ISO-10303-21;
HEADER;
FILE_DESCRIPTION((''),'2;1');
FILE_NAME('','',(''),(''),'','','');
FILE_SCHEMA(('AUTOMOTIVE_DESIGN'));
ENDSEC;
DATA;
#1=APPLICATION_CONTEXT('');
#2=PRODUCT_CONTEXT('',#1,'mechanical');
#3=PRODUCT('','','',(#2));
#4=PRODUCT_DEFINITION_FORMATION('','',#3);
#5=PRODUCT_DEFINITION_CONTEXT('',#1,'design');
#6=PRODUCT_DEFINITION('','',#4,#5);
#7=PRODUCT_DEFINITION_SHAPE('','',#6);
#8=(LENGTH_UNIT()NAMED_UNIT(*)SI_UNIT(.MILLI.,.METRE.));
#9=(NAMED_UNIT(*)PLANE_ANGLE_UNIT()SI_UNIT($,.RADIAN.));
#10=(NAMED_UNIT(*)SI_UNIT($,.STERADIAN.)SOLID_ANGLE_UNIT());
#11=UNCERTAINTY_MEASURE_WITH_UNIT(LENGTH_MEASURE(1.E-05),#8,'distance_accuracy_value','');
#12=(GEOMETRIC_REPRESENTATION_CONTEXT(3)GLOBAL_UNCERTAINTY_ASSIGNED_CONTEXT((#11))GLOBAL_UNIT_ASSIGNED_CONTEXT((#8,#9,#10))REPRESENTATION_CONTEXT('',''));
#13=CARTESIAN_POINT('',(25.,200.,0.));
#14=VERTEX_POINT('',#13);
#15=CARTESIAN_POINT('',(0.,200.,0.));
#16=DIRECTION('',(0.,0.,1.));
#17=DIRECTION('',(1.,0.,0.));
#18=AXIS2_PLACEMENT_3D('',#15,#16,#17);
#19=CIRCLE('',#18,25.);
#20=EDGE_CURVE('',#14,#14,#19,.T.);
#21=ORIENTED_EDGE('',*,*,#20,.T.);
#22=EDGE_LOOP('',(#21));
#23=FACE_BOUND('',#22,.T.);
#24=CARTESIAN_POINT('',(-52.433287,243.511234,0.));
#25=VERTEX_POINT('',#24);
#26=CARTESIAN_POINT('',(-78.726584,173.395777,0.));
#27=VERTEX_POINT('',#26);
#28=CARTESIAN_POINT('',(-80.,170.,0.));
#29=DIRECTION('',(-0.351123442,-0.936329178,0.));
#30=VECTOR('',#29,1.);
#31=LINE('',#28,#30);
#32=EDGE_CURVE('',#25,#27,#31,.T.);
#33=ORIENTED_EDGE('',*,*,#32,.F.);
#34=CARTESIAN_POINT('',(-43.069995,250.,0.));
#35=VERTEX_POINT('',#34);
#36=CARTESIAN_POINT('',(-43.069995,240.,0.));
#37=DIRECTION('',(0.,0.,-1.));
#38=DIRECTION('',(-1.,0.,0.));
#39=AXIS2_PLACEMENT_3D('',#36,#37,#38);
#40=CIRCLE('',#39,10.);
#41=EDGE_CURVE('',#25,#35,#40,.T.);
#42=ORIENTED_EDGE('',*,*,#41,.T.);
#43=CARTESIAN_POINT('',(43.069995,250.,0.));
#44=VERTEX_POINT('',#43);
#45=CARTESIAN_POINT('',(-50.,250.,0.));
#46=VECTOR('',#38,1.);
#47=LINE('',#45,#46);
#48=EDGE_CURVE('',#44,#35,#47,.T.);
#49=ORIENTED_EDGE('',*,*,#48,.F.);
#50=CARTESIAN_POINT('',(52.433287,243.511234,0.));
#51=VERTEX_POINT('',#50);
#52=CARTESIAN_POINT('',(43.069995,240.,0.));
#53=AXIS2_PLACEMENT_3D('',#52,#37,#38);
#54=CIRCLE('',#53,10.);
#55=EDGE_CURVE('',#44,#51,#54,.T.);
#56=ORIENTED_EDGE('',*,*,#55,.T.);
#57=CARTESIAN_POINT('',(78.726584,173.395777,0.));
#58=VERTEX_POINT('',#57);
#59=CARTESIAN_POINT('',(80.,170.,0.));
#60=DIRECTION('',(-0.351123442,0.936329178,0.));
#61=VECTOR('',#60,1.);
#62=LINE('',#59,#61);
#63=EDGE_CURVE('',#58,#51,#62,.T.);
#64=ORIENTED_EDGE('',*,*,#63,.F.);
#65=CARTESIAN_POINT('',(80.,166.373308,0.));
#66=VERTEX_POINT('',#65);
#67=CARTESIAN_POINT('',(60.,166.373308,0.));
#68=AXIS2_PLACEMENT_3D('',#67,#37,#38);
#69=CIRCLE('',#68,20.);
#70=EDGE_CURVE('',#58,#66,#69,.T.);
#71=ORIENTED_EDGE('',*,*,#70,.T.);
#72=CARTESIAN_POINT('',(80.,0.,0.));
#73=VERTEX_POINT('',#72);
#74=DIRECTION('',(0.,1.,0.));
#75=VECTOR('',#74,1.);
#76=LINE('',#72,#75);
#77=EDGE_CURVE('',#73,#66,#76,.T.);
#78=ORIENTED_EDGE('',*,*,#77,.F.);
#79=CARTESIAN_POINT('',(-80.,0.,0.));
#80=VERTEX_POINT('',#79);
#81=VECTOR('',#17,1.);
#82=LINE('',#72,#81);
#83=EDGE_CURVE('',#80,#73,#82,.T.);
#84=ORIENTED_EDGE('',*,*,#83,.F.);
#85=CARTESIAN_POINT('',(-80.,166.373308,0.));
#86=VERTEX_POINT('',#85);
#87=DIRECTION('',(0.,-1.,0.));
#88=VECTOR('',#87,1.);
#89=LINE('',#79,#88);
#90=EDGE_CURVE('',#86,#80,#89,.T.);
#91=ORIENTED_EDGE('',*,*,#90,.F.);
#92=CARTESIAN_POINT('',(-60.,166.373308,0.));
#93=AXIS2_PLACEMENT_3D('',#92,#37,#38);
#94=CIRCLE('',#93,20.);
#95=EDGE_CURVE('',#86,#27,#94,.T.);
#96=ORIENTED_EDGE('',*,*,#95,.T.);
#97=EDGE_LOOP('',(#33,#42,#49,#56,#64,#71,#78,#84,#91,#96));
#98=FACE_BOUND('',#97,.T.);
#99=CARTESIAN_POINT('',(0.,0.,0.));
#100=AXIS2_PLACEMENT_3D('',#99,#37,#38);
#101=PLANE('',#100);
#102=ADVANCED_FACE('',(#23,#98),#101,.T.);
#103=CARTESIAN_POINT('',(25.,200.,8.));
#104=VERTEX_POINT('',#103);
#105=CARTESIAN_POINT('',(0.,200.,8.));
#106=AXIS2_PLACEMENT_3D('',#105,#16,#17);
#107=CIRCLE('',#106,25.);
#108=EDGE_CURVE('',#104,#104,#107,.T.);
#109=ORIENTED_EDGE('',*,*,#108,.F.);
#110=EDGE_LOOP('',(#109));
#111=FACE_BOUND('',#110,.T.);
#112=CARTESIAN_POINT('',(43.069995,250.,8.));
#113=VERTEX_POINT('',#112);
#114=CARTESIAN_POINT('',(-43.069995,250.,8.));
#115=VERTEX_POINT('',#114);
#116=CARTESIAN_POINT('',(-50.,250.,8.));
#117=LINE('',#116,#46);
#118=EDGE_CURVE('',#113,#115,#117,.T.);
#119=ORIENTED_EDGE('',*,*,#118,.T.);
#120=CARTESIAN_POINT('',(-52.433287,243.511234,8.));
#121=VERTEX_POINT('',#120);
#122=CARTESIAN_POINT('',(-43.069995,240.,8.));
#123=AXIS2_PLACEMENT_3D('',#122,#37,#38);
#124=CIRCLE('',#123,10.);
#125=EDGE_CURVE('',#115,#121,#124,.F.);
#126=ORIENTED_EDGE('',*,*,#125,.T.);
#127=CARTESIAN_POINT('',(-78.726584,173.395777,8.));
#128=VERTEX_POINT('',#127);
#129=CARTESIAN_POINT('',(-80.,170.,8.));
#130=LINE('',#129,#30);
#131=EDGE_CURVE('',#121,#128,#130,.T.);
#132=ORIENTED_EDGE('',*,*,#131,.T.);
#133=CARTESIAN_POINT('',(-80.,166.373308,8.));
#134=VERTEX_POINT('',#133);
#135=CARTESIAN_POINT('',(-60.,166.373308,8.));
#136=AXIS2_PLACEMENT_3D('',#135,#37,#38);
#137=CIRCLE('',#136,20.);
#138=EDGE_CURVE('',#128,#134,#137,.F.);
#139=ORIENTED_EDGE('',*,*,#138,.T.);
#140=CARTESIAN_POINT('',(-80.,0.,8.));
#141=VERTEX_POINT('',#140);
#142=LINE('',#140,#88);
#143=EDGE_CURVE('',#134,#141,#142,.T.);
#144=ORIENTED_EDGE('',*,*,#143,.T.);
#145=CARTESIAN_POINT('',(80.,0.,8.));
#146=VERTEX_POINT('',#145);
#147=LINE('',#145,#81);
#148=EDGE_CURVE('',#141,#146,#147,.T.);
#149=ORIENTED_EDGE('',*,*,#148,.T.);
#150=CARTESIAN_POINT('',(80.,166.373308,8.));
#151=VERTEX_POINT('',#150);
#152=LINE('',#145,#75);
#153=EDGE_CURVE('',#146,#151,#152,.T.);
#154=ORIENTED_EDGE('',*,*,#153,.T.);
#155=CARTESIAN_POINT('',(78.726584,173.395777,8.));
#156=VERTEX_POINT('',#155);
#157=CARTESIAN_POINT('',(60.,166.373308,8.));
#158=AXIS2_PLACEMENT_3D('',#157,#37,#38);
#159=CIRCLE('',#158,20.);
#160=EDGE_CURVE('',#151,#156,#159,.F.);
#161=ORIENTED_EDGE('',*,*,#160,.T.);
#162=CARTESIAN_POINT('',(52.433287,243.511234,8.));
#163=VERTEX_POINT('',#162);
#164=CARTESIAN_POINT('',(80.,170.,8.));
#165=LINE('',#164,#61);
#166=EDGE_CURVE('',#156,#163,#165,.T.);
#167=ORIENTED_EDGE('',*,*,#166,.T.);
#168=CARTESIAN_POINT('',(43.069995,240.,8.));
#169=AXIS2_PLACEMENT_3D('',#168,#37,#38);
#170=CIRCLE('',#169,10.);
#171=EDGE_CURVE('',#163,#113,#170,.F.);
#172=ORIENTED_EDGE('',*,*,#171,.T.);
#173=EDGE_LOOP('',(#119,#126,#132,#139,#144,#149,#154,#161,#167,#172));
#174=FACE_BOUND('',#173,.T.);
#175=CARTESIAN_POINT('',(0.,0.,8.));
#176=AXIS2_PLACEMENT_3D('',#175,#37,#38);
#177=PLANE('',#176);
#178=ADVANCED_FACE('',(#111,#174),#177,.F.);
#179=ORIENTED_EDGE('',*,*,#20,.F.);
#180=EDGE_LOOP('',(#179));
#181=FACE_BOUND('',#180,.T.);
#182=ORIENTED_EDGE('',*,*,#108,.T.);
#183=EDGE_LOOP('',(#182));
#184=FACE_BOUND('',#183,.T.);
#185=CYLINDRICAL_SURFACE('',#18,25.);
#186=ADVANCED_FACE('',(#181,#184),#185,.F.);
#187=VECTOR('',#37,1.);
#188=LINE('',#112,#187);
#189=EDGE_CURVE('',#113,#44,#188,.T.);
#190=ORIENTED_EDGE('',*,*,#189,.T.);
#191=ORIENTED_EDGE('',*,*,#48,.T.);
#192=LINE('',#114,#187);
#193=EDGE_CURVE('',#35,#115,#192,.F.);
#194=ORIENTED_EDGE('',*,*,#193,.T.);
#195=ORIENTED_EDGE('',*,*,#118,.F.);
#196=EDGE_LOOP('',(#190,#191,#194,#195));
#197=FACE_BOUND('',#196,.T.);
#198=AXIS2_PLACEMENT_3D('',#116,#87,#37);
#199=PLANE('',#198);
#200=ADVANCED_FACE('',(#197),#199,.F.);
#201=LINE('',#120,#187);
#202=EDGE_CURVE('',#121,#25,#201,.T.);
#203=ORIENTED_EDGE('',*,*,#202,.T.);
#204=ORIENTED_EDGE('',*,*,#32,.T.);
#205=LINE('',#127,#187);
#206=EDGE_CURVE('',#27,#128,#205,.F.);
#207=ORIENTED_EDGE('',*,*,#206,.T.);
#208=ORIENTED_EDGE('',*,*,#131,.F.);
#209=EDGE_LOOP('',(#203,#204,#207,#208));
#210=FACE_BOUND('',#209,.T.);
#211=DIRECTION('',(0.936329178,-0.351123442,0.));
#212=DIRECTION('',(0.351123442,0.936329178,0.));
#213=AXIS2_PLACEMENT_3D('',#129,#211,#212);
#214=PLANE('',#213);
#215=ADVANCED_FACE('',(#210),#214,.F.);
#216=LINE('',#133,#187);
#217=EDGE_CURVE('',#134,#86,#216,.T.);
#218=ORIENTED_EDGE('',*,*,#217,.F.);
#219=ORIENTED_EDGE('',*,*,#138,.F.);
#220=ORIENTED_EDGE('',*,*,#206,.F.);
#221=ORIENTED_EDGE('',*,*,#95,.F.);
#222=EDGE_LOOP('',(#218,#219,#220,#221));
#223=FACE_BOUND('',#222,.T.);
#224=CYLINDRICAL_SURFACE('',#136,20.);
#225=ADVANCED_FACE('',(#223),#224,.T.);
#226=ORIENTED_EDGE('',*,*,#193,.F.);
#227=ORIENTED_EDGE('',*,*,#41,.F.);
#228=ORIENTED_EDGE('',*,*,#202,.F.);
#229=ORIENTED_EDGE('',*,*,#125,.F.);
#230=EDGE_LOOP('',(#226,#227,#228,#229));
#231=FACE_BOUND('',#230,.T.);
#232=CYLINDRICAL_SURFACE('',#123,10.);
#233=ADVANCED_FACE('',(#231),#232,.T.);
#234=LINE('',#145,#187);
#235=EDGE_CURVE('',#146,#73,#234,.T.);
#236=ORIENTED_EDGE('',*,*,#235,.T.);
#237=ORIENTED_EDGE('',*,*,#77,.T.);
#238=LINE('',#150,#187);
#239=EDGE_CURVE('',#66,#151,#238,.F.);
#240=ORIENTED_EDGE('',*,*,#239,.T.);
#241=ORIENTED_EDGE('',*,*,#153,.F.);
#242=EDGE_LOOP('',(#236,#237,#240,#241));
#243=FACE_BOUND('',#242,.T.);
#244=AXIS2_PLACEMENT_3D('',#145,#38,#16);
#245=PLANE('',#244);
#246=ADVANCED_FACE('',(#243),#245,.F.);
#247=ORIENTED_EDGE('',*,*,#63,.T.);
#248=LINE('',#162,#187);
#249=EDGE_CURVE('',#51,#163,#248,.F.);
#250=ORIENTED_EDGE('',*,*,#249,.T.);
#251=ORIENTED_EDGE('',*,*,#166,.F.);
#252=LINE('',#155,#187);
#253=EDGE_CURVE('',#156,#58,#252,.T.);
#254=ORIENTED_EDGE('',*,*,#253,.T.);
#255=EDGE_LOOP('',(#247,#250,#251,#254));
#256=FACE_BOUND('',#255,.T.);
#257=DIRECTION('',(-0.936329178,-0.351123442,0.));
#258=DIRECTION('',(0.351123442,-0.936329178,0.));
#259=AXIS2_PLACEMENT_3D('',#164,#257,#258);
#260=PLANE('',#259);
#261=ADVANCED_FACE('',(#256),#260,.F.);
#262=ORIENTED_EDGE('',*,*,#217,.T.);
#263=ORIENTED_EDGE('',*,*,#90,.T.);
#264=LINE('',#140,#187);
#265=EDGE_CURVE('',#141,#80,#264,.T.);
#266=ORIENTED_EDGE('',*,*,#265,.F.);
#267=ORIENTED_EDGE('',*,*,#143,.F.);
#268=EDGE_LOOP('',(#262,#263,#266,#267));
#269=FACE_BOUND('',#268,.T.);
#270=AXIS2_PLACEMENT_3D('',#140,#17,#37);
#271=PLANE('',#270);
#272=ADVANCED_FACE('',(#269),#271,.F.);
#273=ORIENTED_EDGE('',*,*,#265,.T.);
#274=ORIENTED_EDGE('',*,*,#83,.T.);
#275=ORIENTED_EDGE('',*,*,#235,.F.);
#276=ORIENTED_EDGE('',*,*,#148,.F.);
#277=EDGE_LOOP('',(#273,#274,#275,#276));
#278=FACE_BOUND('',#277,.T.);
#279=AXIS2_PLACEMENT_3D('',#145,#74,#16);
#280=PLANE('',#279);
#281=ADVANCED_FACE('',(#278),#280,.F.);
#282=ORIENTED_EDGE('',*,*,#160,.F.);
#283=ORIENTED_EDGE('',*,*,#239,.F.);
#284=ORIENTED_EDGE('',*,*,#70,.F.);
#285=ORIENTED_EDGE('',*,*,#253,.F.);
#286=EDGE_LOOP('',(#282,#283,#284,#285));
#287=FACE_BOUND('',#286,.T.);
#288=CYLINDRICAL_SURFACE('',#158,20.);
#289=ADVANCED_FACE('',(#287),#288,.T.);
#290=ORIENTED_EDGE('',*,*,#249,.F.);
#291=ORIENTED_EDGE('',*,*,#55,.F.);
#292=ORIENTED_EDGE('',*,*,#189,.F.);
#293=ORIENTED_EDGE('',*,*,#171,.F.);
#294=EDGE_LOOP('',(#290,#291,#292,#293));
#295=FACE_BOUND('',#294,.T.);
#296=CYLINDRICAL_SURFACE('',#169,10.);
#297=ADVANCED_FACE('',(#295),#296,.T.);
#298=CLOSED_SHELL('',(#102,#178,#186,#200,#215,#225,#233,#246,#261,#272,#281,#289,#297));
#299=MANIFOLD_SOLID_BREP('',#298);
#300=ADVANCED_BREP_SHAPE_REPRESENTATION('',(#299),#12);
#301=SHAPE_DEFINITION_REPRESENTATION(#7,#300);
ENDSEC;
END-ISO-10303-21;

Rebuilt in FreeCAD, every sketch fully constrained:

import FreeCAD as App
import Part
import Sketcher
from FreeCAD import Vector


def edges_at(feature, points):
    """Names of the edges that pass closest to the given points."""
    edges = feature.Shape.Edges
    near = lambda p: min(range(len(edges)), key=lambda i: edges[i].distToShape(Part.Vertex(*p))[0])
    return sorted({f"Edge{near(p) + 1}" for p in points})


def add_polygon(sketch, points):
    """Adds a closed chain of lines whose ends are joined by coincident constraints."""
    first, n = sketch.GeometryCount, len(points)
    for a, b in zip(points, points[1:] + points[:1]):
        sketch.addGeometry(Part.LineSegment(App.Vector(*a, 0), App.Vector(*b, 0)), False)
    for i in range(n):
        sketch.addConstraint(Sketcher.Constraint("Coincident", first + i, 2, first + (i + 1) % n, 1))

doc = App.newDocument("Part")
body = doc.addObject("PartDesign::Body", "Body")

# Sketch on XY plane
sketch1 = body.newObject("Sketcher::SketchObject", "Sketch")
sketch1.AttachmentSupport = (doc.getObject("XY_Plane"), [""])
sketch1.MapMode = "FlatFace"
add_polygon(sketch1, [(-80, 170), (-80, 0), (80, 0), (80, 170), (50, 250), (-50, 250)])  # lines 0-5
sketch1.addConstraint([
    Sketcher.Constraint("Vertical", 0),
    Sketcher.Constraint("Horizontal", 1),
    Sketcher.Constraint("Vertical", 2),
    Sketcher.Constraint("Horizontal", 4),
    Sketcher.Constraint("Symmetric", 0, 2, 1, 2, -1, 1),
    Sketcher.Constraint("Horizontal", 2, 2, 5, 2),
    Sketcher.Constraint("Equal", 3, 5),
    Sketcher.Constraint("DistanceX", 1, 1, 1, 2, 160.0),
    Sketcher.Constraint("DistanceX", 4, 2, 4, 1, 100.0),
    Sketcher.Constraint("DistanceY", 0, 2, 0, 1, 170.0),
    Sketcher.Constraint("DistanceY", -1, 1, 3, 2, 250.0),
])
pad1 = body.newObject("PartDesign::Pad", "Pad")
pad1.Profile = sketch1
pad1.Length = 8

# Sketch on XY plane
sketch2 = body.newObject("Sketcher::SketchObject", "Sketch001")
sketch2.AttachmentSupport = (doc.getObject("XY_Plane"), [""])
sketch2.MapMode = "FlatFace"
sketch2.AttachmentOffset = App.Placement(Vector(0, 0, 8), App.Rotation())
sketch2.addGeometry(Part.Circle(Vector(0, 200, 0), Vector(0, 0, 1), 25), False)
sketch2.addConstraint([
    Sketcher.Constraint("PointOnObject", 0, 3, -2),
    Sketcher.Constraint("Diameter", 0, 50.0),
    Sketcher.Constraint("DistanceY", -1, 1, 0, 3, 200.0),
])
pocket1 = body.newObject("PartDesign::Pocket", "Pocket")
pocket1.Profile = sketch2
pocket1.Length = 8
doc.recompute()

fillet = body.newObject("PartDesign::Fillet", "Fillet")
fillet.Base = (pocket1, edges_at(pocket1, [(-80, 170, 4)]))
fillet.Radius = 20
doc.recompute()

fillet2 = body.newObject("PartDesign::Fillet", "Fillet001")
fillet2.Base = (fillet, edges_at(fillet, [(80, 170, 4)]))
fillet2.Radius = 20
doc.recompute()

fillet3 = body.newObject("PartDesign::Fillet", "Fillet002")
fillet3.Base = (fillet2, edges_at(fillet2, [(-50, 250, 4), (50, 250, 4)]))
fillet3.Radius = 10

doc.recompute()
